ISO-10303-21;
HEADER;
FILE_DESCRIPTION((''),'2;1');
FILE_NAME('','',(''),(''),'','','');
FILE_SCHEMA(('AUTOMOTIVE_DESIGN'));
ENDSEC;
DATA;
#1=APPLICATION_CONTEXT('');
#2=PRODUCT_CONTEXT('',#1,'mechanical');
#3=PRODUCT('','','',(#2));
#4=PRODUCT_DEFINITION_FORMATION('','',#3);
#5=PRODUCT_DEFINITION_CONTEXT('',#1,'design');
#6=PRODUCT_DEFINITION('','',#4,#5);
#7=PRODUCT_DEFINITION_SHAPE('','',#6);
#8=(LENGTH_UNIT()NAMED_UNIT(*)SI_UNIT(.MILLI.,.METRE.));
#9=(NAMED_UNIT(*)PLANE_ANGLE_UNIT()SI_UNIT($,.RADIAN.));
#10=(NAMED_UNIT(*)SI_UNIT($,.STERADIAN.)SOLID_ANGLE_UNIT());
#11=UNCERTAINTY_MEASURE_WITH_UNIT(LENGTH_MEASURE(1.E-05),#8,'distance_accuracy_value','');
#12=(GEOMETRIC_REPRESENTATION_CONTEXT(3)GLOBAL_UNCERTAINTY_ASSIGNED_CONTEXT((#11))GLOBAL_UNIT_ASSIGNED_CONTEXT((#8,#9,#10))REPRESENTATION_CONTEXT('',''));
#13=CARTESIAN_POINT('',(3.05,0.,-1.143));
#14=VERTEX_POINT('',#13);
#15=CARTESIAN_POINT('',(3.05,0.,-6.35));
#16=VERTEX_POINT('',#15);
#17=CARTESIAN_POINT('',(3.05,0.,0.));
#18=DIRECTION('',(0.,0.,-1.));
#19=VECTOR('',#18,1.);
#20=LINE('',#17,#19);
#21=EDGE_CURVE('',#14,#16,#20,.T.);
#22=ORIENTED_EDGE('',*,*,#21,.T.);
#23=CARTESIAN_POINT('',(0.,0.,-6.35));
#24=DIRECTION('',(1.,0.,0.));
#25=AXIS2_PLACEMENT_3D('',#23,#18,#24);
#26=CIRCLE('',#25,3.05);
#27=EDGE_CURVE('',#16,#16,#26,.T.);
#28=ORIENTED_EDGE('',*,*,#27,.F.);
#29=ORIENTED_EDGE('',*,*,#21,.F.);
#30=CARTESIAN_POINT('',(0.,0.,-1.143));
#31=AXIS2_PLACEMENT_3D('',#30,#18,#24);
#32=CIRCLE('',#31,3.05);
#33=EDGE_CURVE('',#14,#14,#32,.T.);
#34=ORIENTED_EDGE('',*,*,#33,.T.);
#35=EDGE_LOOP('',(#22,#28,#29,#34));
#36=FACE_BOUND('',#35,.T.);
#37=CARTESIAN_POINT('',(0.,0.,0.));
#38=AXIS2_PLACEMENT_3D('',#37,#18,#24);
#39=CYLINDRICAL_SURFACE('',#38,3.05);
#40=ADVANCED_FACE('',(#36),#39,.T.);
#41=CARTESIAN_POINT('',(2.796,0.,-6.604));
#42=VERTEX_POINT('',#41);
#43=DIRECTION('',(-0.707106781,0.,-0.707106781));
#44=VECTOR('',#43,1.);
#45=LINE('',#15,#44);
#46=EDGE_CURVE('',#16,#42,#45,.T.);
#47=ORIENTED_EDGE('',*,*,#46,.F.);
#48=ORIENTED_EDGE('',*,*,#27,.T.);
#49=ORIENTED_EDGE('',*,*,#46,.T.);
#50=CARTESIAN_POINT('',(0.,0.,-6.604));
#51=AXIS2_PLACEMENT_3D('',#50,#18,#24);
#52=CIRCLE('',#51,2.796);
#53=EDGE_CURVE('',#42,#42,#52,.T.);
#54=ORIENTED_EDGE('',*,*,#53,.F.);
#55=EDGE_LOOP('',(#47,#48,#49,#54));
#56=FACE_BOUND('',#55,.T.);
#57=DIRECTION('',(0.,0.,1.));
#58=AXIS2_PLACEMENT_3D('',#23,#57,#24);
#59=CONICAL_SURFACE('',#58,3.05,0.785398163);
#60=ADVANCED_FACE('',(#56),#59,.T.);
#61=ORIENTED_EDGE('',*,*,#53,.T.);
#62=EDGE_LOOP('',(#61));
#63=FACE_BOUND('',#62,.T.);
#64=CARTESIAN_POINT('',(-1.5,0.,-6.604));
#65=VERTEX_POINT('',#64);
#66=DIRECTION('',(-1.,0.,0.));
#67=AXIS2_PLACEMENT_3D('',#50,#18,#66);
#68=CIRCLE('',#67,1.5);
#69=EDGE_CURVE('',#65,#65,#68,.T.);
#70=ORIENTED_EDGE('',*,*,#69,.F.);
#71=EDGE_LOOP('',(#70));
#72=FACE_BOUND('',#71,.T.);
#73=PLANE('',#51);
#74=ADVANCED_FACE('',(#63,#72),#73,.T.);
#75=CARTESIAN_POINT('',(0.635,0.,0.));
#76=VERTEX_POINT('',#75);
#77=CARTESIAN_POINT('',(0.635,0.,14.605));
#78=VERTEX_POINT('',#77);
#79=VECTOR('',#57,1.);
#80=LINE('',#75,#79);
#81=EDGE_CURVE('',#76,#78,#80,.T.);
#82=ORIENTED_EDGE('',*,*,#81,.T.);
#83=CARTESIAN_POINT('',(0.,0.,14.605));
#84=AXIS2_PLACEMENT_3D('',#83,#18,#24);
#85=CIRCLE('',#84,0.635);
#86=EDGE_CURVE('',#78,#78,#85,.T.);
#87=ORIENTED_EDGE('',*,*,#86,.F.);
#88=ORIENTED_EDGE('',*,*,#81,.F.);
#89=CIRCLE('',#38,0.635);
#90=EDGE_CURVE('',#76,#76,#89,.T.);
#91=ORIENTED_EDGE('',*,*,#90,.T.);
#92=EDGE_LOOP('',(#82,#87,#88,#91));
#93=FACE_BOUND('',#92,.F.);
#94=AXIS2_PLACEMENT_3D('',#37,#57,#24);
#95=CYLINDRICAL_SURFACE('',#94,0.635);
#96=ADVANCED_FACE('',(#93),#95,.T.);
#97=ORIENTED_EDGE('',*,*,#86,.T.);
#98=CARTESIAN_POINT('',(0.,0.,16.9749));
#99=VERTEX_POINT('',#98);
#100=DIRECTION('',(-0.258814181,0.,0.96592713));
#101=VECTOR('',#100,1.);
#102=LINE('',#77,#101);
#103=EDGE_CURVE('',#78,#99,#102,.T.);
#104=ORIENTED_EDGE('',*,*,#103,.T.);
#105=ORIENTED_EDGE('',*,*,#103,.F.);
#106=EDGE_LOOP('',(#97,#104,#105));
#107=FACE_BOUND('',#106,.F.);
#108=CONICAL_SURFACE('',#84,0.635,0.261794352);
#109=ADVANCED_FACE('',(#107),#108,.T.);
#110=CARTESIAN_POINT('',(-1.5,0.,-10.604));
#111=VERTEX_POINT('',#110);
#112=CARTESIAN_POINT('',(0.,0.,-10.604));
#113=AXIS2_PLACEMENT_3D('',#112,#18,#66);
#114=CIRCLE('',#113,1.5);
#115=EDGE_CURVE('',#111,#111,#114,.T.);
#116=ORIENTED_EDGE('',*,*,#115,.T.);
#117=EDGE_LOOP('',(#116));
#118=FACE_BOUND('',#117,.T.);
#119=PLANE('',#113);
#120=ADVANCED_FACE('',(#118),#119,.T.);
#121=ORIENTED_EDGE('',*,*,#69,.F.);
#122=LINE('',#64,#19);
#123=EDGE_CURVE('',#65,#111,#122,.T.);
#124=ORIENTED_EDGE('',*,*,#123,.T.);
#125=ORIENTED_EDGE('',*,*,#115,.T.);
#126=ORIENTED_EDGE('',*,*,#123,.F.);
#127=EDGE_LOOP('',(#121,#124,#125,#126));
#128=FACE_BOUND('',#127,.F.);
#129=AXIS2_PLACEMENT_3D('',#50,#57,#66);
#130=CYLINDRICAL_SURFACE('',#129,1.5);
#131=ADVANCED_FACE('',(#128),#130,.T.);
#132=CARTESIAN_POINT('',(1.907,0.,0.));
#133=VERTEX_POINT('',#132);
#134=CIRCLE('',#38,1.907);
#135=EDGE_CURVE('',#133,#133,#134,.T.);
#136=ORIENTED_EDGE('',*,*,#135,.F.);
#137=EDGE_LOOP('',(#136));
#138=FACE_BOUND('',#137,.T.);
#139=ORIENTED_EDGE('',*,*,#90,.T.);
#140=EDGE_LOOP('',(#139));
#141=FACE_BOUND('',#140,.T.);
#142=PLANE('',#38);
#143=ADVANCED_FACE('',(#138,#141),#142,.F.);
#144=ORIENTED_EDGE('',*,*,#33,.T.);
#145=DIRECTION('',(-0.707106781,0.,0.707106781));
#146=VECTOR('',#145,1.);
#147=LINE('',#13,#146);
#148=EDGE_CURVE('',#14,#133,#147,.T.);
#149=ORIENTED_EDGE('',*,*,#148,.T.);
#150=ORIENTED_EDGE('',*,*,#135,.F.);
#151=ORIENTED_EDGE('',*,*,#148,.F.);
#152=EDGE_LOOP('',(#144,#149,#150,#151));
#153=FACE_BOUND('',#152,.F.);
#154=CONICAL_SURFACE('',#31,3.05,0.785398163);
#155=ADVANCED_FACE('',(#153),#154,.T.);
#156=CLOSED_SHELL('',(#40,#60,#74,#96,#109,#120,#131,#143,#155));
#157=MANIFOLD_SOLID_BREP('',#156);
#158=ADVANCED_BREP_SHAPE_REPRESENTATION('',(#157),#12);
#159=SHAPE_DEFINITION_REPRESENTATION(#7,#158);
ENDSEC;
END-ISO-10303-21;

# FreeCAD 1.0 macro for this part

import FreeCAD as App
import Part
import Sketcher
from FreeCAD import Vector
Q = App.Units.Quantity


def edges_at(feature, points):
    """Names of the edges that pass closest to the given points."""
    edges = feature.Shape.Edges
    near = lambda p: min(range(len(edges)), key=lambda i: edges[i].distToShape(Part.Vertex(*p))[0])
    return sorted({f"Edge{near(p) + 1}" for p in points})


def add_polygon(sketch, points):
    """Adds a closed chain of lines whose ends are joined by coincident constraints."""
    first, n = sketch.GeometryCount, len(points)
    for a, b in zip(points, points[1:] + points[:1]):
        sketch.addGeometry(Part.LineSegment(App.Vector(*a, 0), App.Vector(*b, 0)), False)
    for i in range(n):
        sketch.addConstraint(Sketcher.Constraint("Coincident", first + i, 2, first + (i + 1) % n, 1))

doc = App.newDocument("Part")
body = doc.addObject("PartDesign::Body", "Body")

sketch1 = body.newObject("Sketcher::SketchObject", "Sketch")
sketch1.AttachmentSupport = (doc.getObject("XZ_Plane"), [""])
sketch1.MapMode = "FlatFace"
add_polygon(sketch1, [(0, -6.6), (0, 17), (0.6, 14.6), (0.6, 0), (3, 0), (3, -6.6)])
sketch1.addConstraint([
    Sketcher.Constraint("Vertical", 0),
    Sketcher.Constraint("Vertical", 2),
    Sketcher.Constraint("Horizontal", 3),
    Sketcher.Constraint("Vertical", 4),
    Sketcher.Constraint("Horizontal", 5),
    Sketcher.Constraint("PointOnObject", 0, 2, -2),
    Sketcher.Constraint("PointOnObject", 2, 2, -1),
    Sketcher.Constraint("Angle", 1, Q("-75.0003 deg")),
    Sketcher.Constraint("DistanceY", 4, 2, 4, 1, Q("0.26 in")),
    Sketcher.Constraint("DistanceY", 2, 2, 2, 1, Q("0.575 in")),
    Sketcher.Constraint("DistanceY", 0, 1, 0, 2, Q("0.9283 in")),
    Sketcher.Constraint("DistanceX", 5, 2, 5, 1, Q("3.05 mm")),
])
revolution = body.newObject("PartDesign::Revolution", "Revolution")
revolution.Profile = sketch1
revolution.ReferenceAxis = (sketch1, ["V_Axis"])
revolution.Angle = 360

sketch2 = body.newObject("Sketcher::SketchObject", "Sketch001")
sketch2.AttachmentSupport = (doc.getObject("XY_Plane"), [""])
sketch2.MapMode = "FlatFace"
sketch2.AttachmentOffset = App.Placement(Vector(0, 0, -0.26 * 25.4), App.Rotation())
sketch2.addGeometry(Part.Circle(Vector(0, 0, 0), Vector(0, 0, 1), 1.5), False)
sketch2.addConstraint([
    Sketcher.Constraint("Coincident", 0, 3, -1, 1),
    Sketcher.Constraint("Diameter", 0, Q("0.1181 in")),
])
pad1 = body.newObject("PartDesign::Pad", "Pad")
pad1.Profile = sketch2
pad1.Length = 4
pad1.Reversed = True
doc.recompute()

chamfer = body.newObject("PartDesign::Chamfer", "Chamfer")
chamfer.Base = (pad1, edges_at(pad1, [(-3.05, 0, 0)]))
chamfer.Size = Q("0.045 in")
doc.recompute()

chamfer2 = body.newObject("PartDesign::Chamfer", "Chamfer001")
chamfer2.Base = (chamfer, edges_at(chamfer, [(-3.05, 0, -6.604)]))
chamfer2.Size = Q("0.01 in")

doc.recompute()
